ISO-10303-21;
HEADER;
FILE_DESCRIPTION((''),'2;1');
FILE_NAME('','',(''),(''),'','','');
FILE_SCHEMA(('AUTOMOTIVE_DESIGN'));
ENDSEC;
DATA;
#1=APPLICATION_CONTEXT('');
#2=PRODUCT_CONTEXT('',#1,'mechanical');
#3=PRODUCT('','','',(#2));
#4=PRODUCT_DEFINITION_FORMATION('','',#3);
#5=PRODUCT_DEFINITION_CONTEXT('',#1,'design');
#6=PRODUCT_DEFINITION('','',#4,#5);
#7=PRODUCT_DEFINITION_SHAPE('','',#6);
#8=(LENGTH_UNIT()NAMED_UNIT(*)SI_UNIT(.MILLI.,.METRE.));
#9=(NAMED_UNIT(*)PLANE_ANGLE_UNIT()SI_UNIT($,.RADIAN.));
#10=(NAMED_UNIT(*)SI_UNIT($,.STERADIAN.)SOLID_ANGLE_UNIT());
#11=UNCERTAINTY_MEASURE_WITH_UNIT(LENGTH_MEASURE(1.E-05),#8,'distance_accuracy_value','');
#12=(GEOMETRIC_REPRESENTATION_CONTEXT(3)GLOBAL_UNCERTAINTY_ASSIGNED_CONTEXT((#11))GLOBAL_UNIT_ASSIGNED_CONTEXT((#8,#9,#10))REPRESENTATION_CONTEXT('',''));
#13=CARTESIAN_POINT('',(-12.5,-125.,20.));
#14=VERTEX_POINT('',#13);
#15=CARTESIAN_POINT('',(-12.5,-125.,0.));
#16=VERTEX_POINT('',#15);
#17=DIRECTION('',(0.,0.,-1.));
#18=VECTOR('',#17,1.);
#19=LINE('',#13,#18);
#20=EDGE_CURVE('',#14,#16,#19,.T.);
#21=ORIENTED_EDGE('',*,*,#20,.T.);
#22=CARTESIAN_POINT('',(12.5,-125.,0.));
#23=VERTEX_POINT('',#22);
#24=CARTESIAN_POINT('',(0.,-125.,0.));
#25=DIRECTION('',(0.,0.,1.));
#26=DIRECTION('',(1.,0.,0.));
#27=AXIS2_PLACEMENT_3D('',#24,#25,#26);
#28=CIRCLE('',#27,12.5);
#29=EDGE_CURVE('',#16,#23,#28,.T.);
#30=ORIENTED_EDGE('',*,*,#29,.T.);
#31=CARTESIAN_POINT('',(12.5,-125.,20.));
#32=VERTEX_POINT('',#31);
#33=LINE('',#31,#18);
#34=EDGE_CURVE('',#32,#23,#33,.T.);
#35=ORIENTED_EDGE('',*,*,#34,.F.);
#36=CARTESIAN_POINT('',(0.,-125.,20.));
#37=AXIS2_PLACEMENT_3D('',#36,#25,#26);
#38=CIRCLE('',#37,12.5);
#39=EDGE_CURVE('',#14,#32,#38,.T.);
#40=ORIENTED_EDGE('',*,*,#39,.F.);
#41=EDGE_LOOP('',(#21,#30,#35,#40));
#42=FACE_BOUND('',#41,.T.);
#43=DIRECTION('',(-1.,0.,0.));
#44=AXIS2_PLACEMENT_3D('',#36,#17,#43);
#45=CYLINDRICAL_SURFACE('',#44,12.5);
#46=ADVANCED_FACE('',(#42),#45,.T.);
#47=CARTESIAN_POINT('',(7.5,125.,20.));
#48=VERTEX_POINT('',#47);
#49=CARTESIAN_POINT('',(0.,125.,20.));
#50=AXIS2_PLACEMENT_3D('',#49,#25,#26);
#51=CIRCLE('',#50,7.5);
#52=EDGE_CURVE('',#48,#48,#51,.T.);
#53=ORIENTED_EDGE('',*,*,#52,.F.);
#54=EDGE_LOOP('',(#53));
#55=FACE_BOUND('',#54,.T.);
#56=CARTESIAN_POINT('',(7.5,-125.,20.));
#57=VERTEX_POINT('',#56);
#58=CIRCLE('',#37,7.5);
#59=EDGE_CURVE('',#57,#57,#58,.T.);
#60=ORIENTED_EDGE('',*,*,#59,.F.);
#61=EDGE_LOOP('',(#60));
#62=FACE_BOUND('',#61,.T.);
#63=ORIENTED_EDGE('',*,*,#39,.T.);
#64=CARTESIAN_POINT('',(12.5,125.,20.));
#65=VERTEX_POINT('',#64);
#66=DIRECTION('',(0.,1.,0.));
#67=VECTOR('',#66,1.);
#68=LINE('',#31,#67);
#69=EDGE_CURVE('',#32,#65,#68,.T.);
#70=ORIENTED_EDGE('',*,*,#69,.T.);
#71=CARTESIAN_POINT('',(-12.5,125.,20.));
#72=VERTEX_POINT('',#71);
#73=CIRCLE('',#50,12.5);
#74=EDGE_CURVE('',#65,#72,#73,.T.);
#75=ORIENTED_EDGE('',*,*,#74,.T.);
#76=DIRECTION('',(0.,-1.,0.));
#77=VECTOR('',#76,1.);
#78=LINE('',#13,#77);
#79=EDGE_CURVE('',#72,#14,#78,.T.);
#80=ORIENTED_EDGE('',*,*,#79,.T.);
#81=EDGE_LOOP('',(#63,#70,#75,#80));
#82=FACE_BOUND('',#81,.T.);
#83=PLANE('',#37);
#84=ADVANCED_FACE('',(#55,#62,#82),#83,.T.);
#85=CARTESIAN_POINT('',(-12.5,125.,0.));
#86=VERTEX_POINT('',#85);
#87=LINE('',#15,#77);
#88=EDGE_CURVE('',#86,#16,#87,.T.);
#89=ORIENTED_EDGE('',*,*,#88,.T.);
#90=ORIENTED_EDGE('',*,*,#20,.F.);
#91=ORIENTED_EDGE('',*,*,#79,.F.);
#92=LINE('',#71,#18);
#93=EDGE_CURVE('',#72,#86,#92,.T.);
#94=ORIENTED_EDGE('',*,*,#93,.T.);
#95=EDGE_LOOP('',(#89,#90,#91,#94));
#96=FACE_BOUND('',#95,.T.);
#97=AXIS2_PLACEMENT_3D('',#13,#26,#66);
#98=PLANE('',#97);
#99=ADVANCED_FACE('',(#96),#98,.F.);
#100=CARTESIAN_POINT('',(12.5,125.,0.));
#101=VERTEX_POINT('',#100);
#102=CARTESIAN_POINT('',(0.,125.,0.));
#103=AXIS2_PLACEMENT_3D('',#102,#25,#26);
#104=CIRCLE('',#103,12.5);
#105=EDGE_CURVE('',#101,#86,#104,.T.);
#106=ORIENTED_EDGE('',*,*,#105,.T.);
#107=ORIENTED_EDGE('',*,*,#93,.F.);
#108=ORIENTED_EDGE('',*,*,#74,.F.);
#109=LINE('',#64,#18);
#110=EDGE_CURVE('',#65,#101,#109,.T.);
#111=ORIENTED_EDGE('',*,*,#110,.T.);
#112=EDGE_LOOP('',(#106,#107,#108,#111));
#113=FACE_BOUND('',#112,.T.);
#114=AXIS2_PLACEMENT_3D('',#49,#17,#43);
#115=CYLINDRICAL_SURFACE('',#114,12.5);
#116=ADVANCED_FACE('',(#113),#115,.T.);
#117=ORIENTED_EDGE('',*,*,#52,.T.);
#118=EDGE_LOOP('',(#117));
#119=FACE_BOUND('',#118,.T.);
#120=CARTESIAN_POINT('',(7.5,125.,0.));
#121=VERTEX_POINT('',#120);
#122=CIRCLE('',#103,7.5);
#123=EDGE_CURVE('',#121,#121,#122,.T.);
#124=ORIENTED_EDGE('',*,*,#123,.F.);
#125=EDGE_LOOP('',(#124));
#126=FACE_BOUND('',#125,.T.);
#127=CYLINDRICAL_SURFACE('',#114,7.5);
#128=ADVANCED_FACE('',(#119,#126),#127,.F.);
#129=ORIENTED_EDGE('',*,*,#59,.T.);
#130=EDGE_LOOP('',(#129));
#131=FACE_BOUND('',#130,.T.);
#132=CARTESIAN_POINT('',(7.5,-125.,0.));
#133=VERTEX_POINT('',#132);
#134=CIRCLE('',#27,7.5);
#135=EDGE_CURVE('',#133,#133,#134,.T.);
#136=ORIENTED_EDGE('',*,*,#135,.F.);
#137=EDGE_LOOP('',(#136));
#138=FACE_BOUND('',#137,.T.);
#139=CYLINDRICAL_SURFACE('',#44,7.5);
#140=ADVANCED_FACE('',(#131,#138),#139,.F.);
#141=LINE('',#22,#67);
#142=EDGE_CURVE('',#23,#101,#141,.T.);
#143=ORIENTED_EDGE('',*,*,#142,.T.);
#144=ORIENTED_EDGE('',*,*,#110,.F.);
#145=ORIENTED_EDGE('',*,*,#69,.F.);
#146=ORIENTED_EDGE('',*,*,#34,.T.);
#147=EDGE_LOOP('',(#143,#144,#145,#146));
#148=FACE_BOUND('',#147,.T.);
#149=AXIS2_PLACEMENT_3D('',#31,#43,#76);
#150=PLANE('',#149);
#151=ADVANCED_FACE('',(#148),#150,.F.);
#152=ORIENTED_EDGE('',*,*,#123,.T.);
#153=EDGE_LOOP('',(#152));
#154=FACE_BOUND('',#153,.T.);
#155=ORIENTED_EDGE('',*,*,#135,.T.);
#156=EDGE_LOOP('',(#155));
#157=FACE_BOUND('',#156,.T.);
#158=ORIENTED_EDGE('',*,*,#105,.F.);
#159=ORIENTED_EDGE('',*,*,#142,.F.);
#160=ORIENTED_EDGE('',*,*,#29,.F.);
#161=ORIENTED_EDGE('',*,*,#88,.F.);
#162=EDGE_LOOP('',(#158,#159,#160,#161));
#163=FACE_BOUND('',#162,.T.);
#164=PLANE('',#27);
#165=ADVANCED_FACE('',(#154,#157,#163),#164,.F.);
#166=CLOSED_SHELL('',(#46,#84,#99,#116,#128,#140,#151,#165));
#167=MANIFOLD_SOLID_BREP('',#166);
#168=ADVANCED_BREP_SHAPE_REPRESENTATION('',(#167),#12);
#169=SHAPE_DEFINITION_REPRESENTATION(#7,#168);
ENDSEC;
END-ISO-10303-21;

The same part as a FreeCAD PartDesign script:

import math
import FreeCAD as App
import Part
import Sketcher
Q = App.Units.Quantity

doc = App.newDocument("Part")
body = doc.addObject("PartDesign::Body", "Body")

# Sketch on XY plane
sketch1 = body.newObject("Sketcher::SketchObject", "Sketch")
sketch1.AttachmentSupport = (doc.getObject("XY_Plane"), [""])
sketch1.MapMode = "FlatFace"
sketch1.addGeometry(Part.LineSegment(App.Vector(-12.5, 125, 0), App.Vector(-12.5, -125, 0)), False)
sketch1.addGeometry(Part.ArcOfCircle(Part.Circle(App.Vector(0, -125, 0), App.Vector(0, 0, 1), 12.5), math.radians(180), math.radians(360)), False)
sketch1.addGeometry(Part.LineSegment(App.Vector(12.5, -125, 0), App.Vector(12.5, 125, 0)), False)
sketch1.addGeometry(Part.ArcOfCircle(Part.Circle(App.Vector(0, 125, 0), App.Vector(0, 0, 1), 12.5), math.radians(0), math.radians(180)), False)
sketch1.addGeometry(Part.Circle(App.Vector(0, -125, 0), App.Vector(0, 0, 1), 7.5), False)
sketch1.addGeometry(Part.Circle(App.Vector(0, 125, 0), App.Vector(0, 0, 1), 7.5), False)
sketch1.addConstraint(Sketcher.Constraint("Tangent", 0, 2, 1, 1))
sketch1.addConstraint(Sketcher.Constraint("Tangent", 1, 2, 2, 1))
sketch1.addConstraint(Sketcher.Constraint("Tangent", 2, 2, 3, 1))
sketch1.addConstraint(Sketcher.Constraint("Tangent", 3, 2, 0, 1))
sketch1.addConstraint(Sketcher.Constraint("Vertical", 0))
sketch1.addConstraint(Sketcher.Constraint("Vertical", 2))
sketch1.addConstraint(Sketcher.Constraint("Coincident", 4, 3, 1, 3))
sketch1.addConstraint(Sketcher.Constraint("Coincident", 5, 3, 3, 3))
sketch1.addConstraint(Sketcher.Constraint("Equal", 4, 5))
sketch1.addConstraint(Sketcher.Constraint("Symmetric", 1, 3, 3, 3, -1, 1))
sketch1.addConstraint(Sketcher.Constraint("Diameter", 4, Q("15 mm")))
sketch1.addConstraint(Sketcher.Constraint("Radius", 1, Q("12.5 mm")))
sketch1.addConstraint(Sketcher.Constraint("DistanceY", 0, 2, 0, 1, Q("250 mm")))
pad1 = body.newObject("PartDesign::Pad", "Pad")
pad1.Profile = sketch1
pad1.Length = 20

doc.recompute()
